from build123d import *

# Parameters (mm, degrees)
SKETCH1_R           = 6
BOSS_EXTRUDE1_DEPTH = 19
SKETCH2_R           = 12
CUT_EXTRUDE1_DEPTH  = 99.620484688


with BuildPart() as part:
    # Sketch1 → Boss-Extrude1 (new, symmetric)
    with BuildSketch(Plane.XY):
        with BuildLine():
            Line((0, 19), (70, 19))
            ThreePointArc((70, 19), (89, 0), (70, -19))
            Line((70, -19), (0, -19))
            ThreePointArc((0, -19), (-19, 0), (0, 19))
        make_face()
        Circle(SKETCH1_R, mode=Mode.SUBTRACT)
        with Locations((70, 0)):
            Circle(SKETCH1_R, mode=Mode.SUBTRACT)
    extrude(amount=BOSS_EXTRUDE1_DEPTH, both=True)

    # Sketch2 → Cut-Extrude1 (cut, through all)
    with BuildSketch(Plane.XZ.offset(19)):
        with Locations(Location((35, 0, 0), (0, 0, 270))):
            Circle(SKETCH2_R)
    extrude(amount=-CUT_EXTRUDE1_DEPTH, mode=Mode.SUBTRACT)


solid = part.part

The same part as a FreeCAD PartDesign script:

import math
import FreeCAD as App
import Part
import Sketcher
from FreeCAD import Vector
Q = App.Units.Quantity

doc = App.newDocument("Part")
body = doc.addObject("PartDesign::Body", "Body")

sketch1 = doc.addObject("Sketcher::SketchObject", "Sketch")
body.addObject(sketch1)
sketch1.AttachmentSupport = (doc.XY_Plane, [""])
sketch1.MapMode = "FlatFace"
sketch1.addGeometry([
    Part.LineSegment(Vector(70, 19, 0), Vector(0, 19, 0)),
    Part.ArcOfCircle(Part.Circle(Vector(0, 0, 0), Vector(0, 0, 1), 19), math.radians(90), math.radians(270)),
    Part.LineSegment(Vector(0, -19, 0), Vector(70, -19, 0)),
    Part.ArcOfCircle(Part.Circle(Vector(70, 0, 0), Vector(0, 0, 1), 19), math.radians(-90), math.radians(90)),
    Part.Circle(Vector(70, 0, 0), Vector(0, 0, 1), 6),
    Part.Circle(Vector(0, 0, 0), Vector(0, 0, 1), 6),
], False)
sketch1.addConstraint([
    Sketcher.Constraint("Tangent", 0, 2, 1, 1),
    Sketcher.Constraint("Tangent", 1, 2, 2, 1),
    Sketcher.Constraint("Tangent", 2, 2, 3, 1),
    Sketcher.Constraint("Tangent", 3, 2, 0, 1),
    Sketcher.Constraint("Horizontal", 0),
    Sketcher.Constraint("Horizontal", 2),
    Sketcher.Constraint("Coincident", 1, 3, -1, 1),
    Sketcher.Constraint("Coincident", 5, 3, -1, 1),
    Sketcher.Constraint("Coincident", 4, 3, 3, 3),
    Sketcher.Constraint("Equal", 4, 5),
    Sketcher.Constraint("Diameter", 4, Q("12 mm")),
    Sketcher.Constraint("Radius", 1, Q("19 mm")),
    Sketcher.Constraint("DistanceX", 0, 2, 0, 1, Q("70 mm")),
])
pad1 = doc.addObject("PartDesign::Pad", "Pad")
body.addObject(pad1)
pad1.Profile = sketch1
pad1.Length = 38
pad1.Midplane = True

sketch2 = doc.addObject("Sketcher::SketchObject", "Sketch001")
body.addObject(sketch2)
sketch2.AttachmentSupport = (doc.XZ_Plane, [""])
sketch2.MapMode = "FlatFace"
sketch2.AttachmentOffset = App.Placement(Vector(0, 0, 19), App.Rotation())
sketch2.addGeometry(Part.Circle(Vector(35, 0, 0), Vector(0, 0, 1), 12), False)
sketch2.addConstraint([
    Sketcher.Constraint("PointOnObject", 0, 3, -1),
    Sketcher.Constraint("Diameter", 0, Q("24 mm")),
    Sketcher.Constraint("DistanceX", -1, 1, 0, 3, Q("35 mm")),
])
pocket1 = doc.addObject("PartDesign::Pocket", "Pocket")
body.addObject(pocket1)
pocket1.Profile = sketch2
pocket1.Type = "ThroughAll"

doc.recompute()
